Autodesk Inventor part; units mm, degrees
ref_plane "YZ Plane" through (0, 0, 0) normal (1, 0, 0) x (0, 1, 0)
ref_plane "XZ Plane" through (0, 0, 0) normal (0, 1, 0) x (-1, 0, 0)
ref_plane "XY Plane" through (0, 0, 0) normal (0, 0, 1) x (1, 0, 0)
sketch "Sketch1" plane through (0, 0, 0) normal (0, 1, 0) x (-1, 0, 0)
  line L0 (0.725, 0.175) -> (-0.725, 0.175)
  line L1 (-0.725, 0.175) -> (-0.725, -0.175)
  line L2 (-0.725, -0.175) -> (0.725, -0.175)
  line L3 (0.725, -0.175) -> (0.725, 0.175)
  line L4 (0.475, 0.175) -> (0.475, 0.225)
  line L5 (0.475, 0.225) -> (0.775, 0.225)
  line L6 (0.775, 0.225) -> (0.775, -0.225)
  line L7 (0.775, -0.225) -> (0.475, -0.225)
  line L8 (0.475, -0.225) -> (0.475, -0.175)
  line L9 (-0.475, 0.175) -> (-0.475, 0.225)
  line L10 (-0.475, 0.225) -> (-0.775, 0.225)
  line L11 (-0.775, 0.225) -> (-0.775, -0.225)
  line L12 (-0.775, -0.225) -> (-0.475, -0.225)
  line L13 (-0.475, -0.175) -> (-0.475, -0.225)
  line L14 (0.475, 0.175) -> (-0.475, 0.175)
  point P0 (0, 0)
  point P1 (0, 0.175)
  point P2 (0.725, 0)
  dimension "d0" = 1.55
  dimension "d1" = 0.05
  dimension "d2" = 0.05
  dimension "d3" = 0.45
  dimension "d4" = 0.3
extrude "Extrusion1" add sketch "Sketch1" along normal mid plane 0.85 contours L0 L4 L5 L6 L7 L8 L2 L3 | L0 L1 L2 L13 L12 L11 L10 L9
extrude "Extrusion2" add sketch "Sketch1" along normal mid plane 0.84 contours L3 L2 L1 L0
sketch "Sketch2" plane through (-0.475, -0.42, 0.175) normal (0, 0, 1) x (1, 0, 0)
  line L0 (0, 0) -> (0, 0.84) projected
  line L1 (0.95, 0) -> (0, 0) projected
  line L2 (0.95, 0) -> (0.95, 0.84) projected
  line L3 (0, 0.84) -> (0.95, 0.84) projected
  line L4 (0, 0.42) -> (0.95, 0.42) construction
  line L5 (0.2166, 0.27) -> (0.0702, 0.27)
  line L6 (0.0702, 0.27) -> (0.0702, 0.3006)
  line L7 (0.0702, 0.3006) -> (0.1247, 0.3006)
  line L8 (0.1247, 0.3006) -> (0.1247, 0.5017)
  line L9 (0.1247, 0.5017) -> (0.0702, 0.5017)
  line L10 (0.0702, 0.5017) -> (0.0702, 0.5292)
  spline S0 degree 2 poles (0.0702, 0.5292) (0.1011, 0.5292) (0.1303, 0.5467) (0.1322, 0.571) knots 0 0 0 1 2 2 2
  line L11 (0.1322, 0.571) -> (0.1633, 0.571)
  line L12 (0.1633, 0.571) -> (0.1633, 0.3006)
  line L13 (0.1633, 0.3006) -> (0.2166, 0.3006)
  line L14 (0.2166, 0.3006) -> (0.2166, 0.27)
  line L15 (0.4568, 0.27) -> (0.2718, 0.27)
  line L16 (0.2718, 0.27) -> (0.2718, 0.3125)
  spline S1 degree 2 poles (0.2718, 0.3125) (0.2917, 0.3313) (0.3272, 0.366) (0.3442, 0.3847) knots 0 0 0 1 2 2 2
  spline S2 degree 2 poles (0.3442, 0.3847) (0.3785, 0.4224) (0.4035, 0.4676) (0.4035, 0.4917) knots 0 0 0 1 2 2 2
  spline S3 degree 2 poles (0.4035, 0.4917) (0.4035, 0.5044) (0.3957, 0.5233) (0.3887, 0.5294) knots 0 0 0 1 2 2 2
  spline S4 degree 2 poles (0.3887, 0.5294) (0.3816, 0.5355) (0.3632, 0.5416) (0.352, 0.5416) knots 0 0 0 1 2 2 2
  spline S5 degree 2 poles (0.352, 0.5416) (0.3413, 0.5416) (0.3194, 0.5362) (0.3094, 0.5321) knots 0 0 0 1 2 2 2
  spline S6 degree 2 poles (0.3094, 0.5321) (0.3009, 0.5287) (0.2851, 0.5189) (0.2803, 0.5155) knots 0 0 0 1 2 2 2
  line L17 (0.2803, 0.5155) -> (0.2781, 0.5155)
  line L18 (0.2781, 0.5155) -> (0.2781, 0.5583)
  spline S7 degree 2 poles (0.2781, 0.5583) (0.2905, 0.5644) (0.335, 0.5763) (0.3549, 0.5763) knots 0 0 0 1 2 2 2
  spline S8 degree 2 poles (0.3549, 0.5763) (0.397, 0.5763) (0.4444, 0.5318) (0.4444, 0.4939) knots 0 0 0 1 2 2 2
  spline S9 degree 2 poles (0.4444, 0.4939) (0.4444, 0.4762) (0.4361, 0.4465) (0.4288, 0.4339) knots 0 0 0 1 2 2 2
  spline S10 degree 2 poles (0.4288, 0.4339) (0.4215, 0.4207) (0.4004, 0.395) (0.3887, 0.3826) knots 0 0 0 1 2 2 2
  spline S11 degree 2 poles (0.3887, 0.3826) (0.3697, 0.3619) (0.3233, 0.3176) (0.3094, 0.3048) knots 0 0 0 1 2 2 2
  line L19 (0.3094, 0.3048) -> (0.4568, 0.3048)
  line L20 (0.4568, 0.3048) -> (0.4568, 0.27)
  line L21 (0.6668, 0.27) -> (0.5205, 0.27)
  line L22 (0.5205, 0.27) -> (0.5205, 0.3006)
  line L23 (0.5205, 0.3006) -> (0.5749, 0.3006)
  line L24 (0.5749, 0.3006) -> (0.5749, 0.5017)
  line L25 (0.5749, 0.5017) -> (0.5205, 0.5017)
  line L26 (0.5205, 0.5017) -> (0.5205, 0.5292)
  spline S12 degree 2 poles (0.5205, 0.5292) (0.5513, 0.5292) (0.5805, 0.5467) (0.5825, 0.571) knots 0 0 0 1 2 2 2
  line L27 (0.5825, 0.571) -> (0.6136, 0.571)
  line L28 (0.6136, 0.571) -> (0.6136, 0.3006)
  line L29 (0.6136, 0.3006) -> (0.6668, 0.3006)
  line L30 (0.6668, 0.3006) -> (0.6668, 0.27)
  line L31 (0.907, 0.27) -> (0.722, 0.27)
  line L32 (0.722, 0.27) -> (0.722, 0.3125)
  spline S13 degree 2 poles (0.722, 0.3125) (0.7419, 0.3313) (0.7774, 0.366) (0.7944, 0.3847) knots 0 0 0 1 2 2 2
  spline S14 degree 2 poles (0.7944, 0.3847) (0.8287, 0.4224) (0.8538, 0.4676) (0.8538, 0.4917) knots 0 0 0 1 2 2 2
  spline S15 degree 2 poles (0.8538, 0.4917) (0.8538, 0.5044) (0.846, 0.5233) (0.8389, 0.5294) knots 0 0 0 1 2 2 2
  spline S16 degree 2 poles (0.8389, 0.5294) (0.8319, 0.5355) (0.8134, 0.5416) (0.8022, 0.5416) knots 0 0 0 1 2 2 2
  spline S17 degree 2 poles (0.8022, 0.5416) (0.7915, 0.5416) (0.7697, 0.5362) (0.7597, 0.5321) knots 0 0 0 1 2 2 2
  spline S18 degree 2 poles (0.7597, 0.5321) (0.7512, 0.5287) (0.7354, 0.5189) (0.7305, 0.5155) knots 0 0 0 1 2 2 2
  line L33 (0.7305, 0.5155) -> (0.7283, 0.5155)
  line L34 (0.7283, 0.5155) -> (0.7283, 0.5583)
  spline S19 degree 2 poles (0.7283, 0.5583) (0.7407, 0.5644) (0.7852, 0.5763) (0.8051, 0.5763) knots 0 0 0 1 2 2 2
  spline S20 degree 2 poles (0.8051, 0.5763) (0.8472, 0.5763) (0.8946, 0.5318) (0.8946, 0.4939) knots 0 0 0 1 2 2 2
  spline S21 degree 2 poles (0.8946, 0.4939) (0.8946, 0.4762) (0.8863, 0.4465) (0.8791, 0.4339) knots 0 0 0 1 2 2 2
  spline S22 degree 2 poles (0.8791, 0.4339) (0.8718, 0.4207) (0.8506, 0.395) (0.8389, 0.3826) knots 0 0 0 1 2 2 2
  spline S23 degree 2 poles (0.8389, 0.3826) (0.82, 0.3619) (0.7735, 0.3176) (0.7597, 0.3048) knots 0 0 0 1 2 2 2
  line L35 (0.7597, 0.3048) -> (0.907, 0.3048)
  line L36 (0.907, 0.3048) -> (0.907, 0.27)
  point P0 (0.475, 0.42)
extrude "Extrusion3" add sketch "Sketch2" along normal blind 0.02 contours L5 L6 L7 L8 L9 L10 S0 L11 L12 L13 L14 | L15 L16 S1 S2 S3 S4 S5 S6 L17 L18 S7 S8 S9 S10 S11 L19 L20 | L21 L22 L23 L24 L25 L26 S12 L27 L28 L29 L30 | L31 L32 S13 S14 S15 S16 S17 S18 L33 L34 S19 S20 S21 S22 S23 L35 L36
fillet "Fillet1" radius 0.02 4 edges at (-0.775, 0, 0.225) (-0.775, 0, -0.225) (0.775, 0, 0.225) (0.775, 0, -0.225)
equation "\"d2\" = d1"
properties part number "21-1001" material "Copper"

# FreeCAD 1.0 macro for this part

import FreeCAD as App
import Part
import Sketcher
Q = App.Units.Quantity


def edges_at(feature, points):
    """Names of the edges that pass closest to the given points."""
    edges = feature.Shape.Edges
    near = lambda p: min(range(len(edges)), key=lambda i: edges[i].distToShape(Part.Vertex(*p))[0])
    return sorted({f"Edge{near(p) + 1}" for p in points})

doc = App.newDocument("Part")
params = doc.addObject("Spreadsheet::Sheet", "Params")
for row, (alias, value) in enumerate([
    ("sketch1_width", "0.3 mm"),
    ("sketch1_height", "0.05 mm"),
    ("sketch1_height2", "0.45 mm"),
    ("pad1_length", "0.85 mm"),
    ("sketch2_width", "1.45 mm"),
    ("sketch2_height", "0.35 mm"),
    ("pad2_length", "0.84 mm"),
    ("pad3_length", "0.02 mm"),
    ("fillet_radius", "0.02 mm"),
], start=1):
    params.set(f"A{row}", alias)
    params.set(f"B{row}", "=" + value)
    params.setAlias(f"B{row}", alias)

body = doc.addObject("PartDesign::Body", "Body")
body.AllowCompound = True

# Sketch on XZ plane
sketch1 = body.newObject("Sketcher::SketchObject", "Sketch")
sketch1.AttachmentSupport = (doc.getObject("XZ_Plane"), [""])
sketch1.MapMode = "FlatFace"
sketch1.addGeometry([
    Part.LineSegment(App.Vector(-0.47, 0.17, 0), App.Vector(-0.72, 0.17, 0)),  # 0
    Part.LineSegment(App.Vector(-0.72, 0.17, 0), App.Vector(-0.72, -0.17, 0)),  # 1
    Part.LineSegment(App.Vector(-0.72, -0.17, 0), App.Vector(-0.47, -0.17, 0)),  # 2
    Part.LineSegment(App.Vector(-0.47, -0.17, 0), App.Vector(-0.47, -0.23, 0)),  # 3
    Part.LineSegment(App.Vector(-0.47, -0.23, 0), App.Vector(-0.78, -0.23, 0)),  # 4
    Part.LineSegment(App.Vector(-0.78, -0.23, 0), App.Vector(-0.78, 0.23, 0)),  # 5
    Part.LineSegment(App.Vector(-0.78, 0.23, 0), App.Vector(-0.47, 0.23, 0)),  # 6
    Part.LineSegment(App.Vector(-0.47, 0.23, 0), App.Vector(-0.47, 0.17, 0)),  # 7
    Part.LineSegment(App.Vector(0.72, 0.17, 0), App.Vector(0.47, 0.17, 0)),  # 8
    Part.LineSegment(App.Vector(0.47, 0.17, 0), App.Vector(0.47, 0.23, 0)),  # 9
    Part.LineSegment(App.Vector(0.47, 0.23, 0), App.Vector(0.78, 0.23, 0)),  # 10
    Part.LineSegment(App.Vector(0.78, 0.23, 0), App.Vector(0.78, -0.23, 0)),  # 11
    Part.LineSegment(App.Vector(0.78, -0.23, 0), App.Vector(0.47, -0.23, 0)),  # 12
    Part.LineSegment(App.Vector(0.47, -0.23, 0), App.Vector(0.47, -0.17, 0)),  # 13
    Part.LineSegment(App.Vector(0.47, -0.17, 0), App.Vector(0.72, -0.17, 0)),  # 14
    Part.LineSegment(App.Vector(0.72, -0.17, 0), App.Vector(0.72, 0.17, 0)),  # 15
], False)
sketch1.addConstraint([
    Sketcher.Constraint("Coincident", 0, 2, 1, 1),
    Sketcher.Constraint("Coincident", 1, 2, 2, 1),
    Sketcher.Constraint("Coincident", 2, 2, 3, 1),
    Sketcher.Constraint("Coincident", 3, 2, 4, 1),
    Sketcher.Constraint("Coincident", 4, 2, 5, 1),
    Sketcher.Constraint("Coincident", 5, 2, 6, 1),
    Sketcher.Constraint("Coincident", 6, 2, 7, 1),
    Sketcher.Constraint("Coincident", 7, 2, 0, 1),
    Sketcher.Constraint("Coincident", 8, 2, 9, 1),
    Sketcher.Constraint("Coincident", 9, 2, 10, 1),
    Sketcher.Constraint("Coincident", 10, 2, 11, 1),
    Sketcher.Constraint("Coincident", 11, 2, 12, 1),
    Sketcher.Constraint("Coincident", 12, 2, 13, 1),
    Sketcher.Constraint("Coincident", 13, 2, 14, 1),
    Sketcher.Constraint("Coincident", 14, 2, 15, 1),
    Sketcher.Constraint("Coincident", 15, 2, 8, 1),
    Sketcher.Constraint("Horizontal", 0),
    Sketcher.Constraint("Vertical", 1),
    Sketcher.Constraint("Horizontal", 2),
    Sketcher.Constraint("Vertical", 3),
    Sketcher.Constraint("Horizontal", 4),
    Sketcher.Constraint("Vertical", 5),
    Sketcher.Constraint("Horizontal", 6),
    Sketcher.Constraint("Vertical", 7),
    Sketcher.Constraint("Horizontal", 8),
    Sketcher.Constraint("Vertical", 9),
    Sketcher.Constraint("Horizontal", 10),
    Sketcher.Constraint("Vertical", 11),
    Sketcher.Constraint("Horizontal", 12),
    Sketcher.Constraint("Vertical", 13),
    Sketcher.Constraint("Horizontal", 14),
    Sketcher.Constraint("Vertical", 15),
    Sketcher.Constraint("Symmetric", 2, 2, 8, 2, -1, 1),
    Sketcher.Constraint("Symmetric", 4, 2, 10, 2, -1, 1),
    Sketcher.Constraint("Symmetric", 6, 2, 12, 2, -1, 1),
    Sketcher.Constraint("Symmetric", 0, 2, 14, 2, -1, 1),
    Sketcher.Constraint("Symmetric", 7, 2, 8, 2, -2),
    Sketcher.Constraint("Horizontal", 6, 2, 9, 2),
    Sketcher.Constraint("DistanceX", 4, 2, 4, 1, Q("0.3 mm")),
    Sketcher.Constraint("DistanceY", 3, 2, 3, 1, Q("0.05 mm")),
    Sketcher.Constraint("DistanceY", 5, 1, 5, 2, Q("0.45 mm")),
    Sketcher.Constraint("DistanceX", 4, 2, 1, 2, Q("0.05 mm")),
    Sketcher.Constraint("DistanceX", 0, 2, 8, 2, Q("1.2 mm")),
])
sketch1.setExpression("Constraints[38]", "Params.sketch1_width")
sketch1.setExpression("Constraints[39]", "Params.sketch1_height")
sketch1.setExpression("Constraints[40]", "Params.sketch1_height2")
pad1 = body.newObject("PartDesign::Pad", "Pad")
pad1.Profile = sketch1
pad1.setExpression("Length", "Params.pad1_length")
pad1.Midplane = True

# Sketch on XZ plane
sketch2 = body.newObject("Sketcher::SketchObject", "Sketch001")
sketch2.AttachmentSupport = (doc.getObject("XZ_Plane"), [""])
sketch2.MapMode = "FlatFace"
sketch2.addGeometry([
    Part.LineSegment(App.Vector(-0.72, -0.17, 0), App.Vector(-0.72, 0.17, 0)),
    Part.LineSegment(App.Vector(-0.72, 0.17, 0), App.Vector(0.72, 0.17, 0)),
    Part.LineSegment(App.Vector(0.72, 0.17, 0), App.Vector(0.72, -0.17, 0)),
    Part.LineSegment(App.Vector(0.72, -0.17, 0), App.Vector(-0.72, -0.17, 0)),
], False)
sketch2.addConstraint([
    Sketcher.Constraint("Coincident", 0, 2, 1, 1),
    Sketcher.Constraint("Coincident", 1, 2, 2, 1),
    Sketcher.Constraint("Coincident", 2, 2, 3, 1),
    Sketcher.Constraint("Coincident", 3, 2, 0, 1),
    Sketcher.Constraint("Vertical", 0),
    Sketcher.Constraint("Horizontal", 1),
    Sketcher.Constraint("Vertical", 2),
    Sketcher.Constraint("Horizontal", 3),
    Sketcher.Constraint("Symmetric", 0, 2, 2, 2, -1, 1),
    Sketcher.Constraint("DistanceX", 1, 1, 1, 2, Q("1.45 mm")),
    Sketcher.Constraint("DistanceY", 0, 1, 0, 2, Q("0.35 mm")),
])
sketch2.setExpression("Constraints[9]", "Params.sketch2_width")
sketch2.setExpression("Constraints[10]", "Params.sketch2_height")
pad2 = body.newObject("PartDesign::Pad", "Pad001")
pad2.Profile = sketch2
pad2.setExpression("Length", "Params.pad2_length")
pad2.Midplane = True

# Sketch on XY plane
sketch3 = body.newObject("Sketcher::SketchObject", "Sketch002")
sketch3.AttachmentSupport = (doc.getObject("XY_Plane"), [""])
sketch3.MapMode = "FlatFace"
sketch3.AttachmentOffset = App.Placement(App.Vector(0, 0, 0.175), App.Rotation())
sketch3.addGeometry([
    Part.LineSegment(App.Vector(-0.4048, -0.15, 0), App.Vector(-0.2584, -0.15, 0)),  # 0
    Part.LineSegment(App.Vector(-0.2584, -0.15, 0), App.Vector(-0.2584, -0.1194, 0)),  # 1
    Part.LineSegment(App.Vector(-0.2584, -0.1194, 0), App.Vector(-0.3117, -0.1194, 0)),  # 2
    Part.LineSegment(App.Vector(-0.3117, -0.1194, 0), App.Vector(-0.3117, 0.151, 0)),  # 3
    Part.LineSegment(App.Vector(-0.3117, 0.151, 0), App.Vector(-0.3428, 0.151, 0)),  # 4
    Part.BSplineCurve([App.Vector(-0.4048, 0.1092, 0), App.Vector(-0.3739, 0.1092, 0), App.Vector(-0.3447, 0.1267, 0), App.Vector(-0.3428, 0.151, 0)], [3, 1, 3], [0, 1, 2], False, 2, [1, 1, 1, 1], False),  # 5
    Part.LineSegment(App.Vector(-0.4048, 0.1092, 0), App.Vector(-0.4048, 0.0817, 0)),  # 6
    Part.LineSegment(App.Vector(-0.4048, 0.0817, 0), App.Vector(-0.3503, 0.0817, 0)),  # 7
    Part.LineSegment(App.Vector(-0.3503, 0.0817, 0), App.Vector(-0.3503, -0.1194, 0)),  # 8
    Part.LineSegment(App.Vector(-0.3503, -0.1194, 0), App.Vector(-0.4048, -0.1194, 0)),  # 9
    Part.LineSegment(App.Vector(-0.4048, -0.1194, 0), App.Vector(-0.4048, -0.15, 0)),  # 10
    Part.LineSegment(App.Vector(-0.2032, -0.15, 0), App.Vector(-0.0182, -0.15, 0)),  # 11
    Part.LineSegment(App.Vector(-0.0182, -0.15, 0), App.Vector(-0.0182, -0.1152, 0)),  # 12
    Part.LineSegment(App.Vector(-0.0182, -0.1152, 0), App.Vector(-0.1656, -0.1152, 0)),  # 13
    Part.BSplineCurve([App.Vector(-0.0863, -0.0374, 0), App.Vector(-0.1053, -0.0581, 0), App.Vector(-0.1517, -0.1024, 0), App.Vector(-0.1656, -0.1152, 0)], [3, 1, 3], [0, 1, 2], False, 2, [1, 1, 1, 1], False),  # 14
    Part.BSplineCurve([App.Vector(-0.0462, 0.0139, 0), App.Vector(-0.0535, 0.0007, 0), App.Vector(-0.0746, -0.025, 0), App.Vector(-0.0863, -0.0374, 0)], [3, 1, 3], [0, 1, 2], False, 2, [1, 1, 1, 1], False),  # 15
    Part.BSplineCurve([App.Vector(-0.0306, 0.0739, 0), App.Vector(-0.0306, 0.0562, 0), App.Vector(-0.0389, 0.0265, 0), App.Vector(-0.0462, 0.0139, 0)], [3, 1, 3], [0, 1, 2], False, 2, [1, 1, 1, 1], False),  # 16
    Part.BSplineCurve([App.Vector(-0.1201, 0.1563, 0), App.Vector(-0.078, 0.1563, 0), App.Vector(-0.0306, 0.1118, 0), App.Vector(-0.0306, 0.0739, 0)], [3, 1, 3], [0, 1, 2], False, 2, [1, 1, 1, 1], False),  # 17
    Part.BSplineCurve([App.Vector(-0.1969, 0.1383, 0), App.Vector(-0.1845, 0.1444, 0), App.Vector(-0.14, 0.1563, 0), App.Vector(-0.1201, 0.1563, 0)], [3, 1, 3], [0, 1, 2], False, 2, [1, 1, 1, 1], False),  # 18
    Part.LineSegment(App.Vector(-0.1969, 0.1383, 0), App.Vector(-0.1969, 0.0955, 0)),  # 19
    Part.LineSegment(App.Vector(-0.1969, 0.0955, 0), App.Vector(-0.1947, 0.0955, 0)),  # 20
    Part.BSplineCurve([App.Vector(-0.1656, 0.1121, 0), App.Vector(-0.1741, 0.1087, 0), App.Vector(-0.1899, 0.0989, 0), App.Vector(-0.1947, 0.0955, 0)], [3, 1, 3], [0, 1, 2], False, 2, [1, 1, 1, 1], False),  # 21
    Part.BSplineCurve([App.Vector(-0.123, 0.1216, 0), App.Vector(-0.1337, 0.1216, 0), App.Vector(-0.1556, 0.1162, 0), App.Vector(-0.1656, 0.1121, 0)], [3, 1, 3], [0, 1, 2], False, 2, [1, 1, 1, 1], False),  # 22
    Part.BSplineCurve([App.Vector(-0.0863, 0.1094, 0), App.Vector(-0.0934, 0.1155, 0), App.Vector(-0.1118, 0.1216, 0), App.Vector(-0.123, 0.1216, 0)], [3, 1, 3], [0, 1, 2], False, 2, [1, 1, 1, 1], False),  # 23
    Part.BSplineCurve([App.Vector(-0.0715, 0.0717, 0), App.Vector(-0.0715, 0.0844, 0), App.Vector(-0.0793, 0.1033, 0), App.Vector(-0.0863, 0.1094, 0)], [3, 1, 3], [0, 1, 2], False, 2, [1, 1, 1, 1], False),  # 24
    Part.BSplineCurve([App.Vector(-0.1308, -0.0353, 0), App.Vector(-0.0965, 0.0024, 0), App.Vector(-0.0715, 0.0476, 0), App.Vector(-0.0715, 0.0717, 0)], [3, 1, 3], [0, 1, 2], False, 2, [1, 1, 1, 1], False),  # 25
    Part.BSplineCurve([App.Vector(-0.2032, -0.1075, 0), App.Vector(-0.1833, -0.0887, 0), App.Vector(-0.1478, -0.054, 0), App.Vector(-0.1308, -0.0353, 0)], [3, 1, 3], [0, 1, 2], False, 2, [1, 1, 1, 1], False),  # 26
    Part.LineSegment(App.Vector(-0.2032, -0.1075, 0), App.Vector(-0.2032, -0.15, 0)),  # 27
    Part.LineSegment(App.Vector(0.0455, -0.15, 0), App.Vector(0.1918, -0.15, 0)),  # 28
    Part.LineSegment(App.Vector(0.1918, -0.15, 0), App.Vector(0.1918, -0.1194, 0)),  # 29
    Part.LineSegment(App.Vector(0.1918, -0.1194, 0), App.Vector(0.1386, -0.1194, 0)),  # 30
    Part.LineSegment(App.Vector(0.1386, -0.1194, 0), App.Vector(0.1386, 0.151, 0)),  # 31
    Part.LineSegment(App.Vector(0.1386, 0.151, 0), App.Vector(0.1075, 0.151, 0)),  # 32
    Part.BSplineCurve([App.Vector(0.0455, 0.1092, 0), App.Vector(0.0763, 0.1092, 0), App.Vector(0.1055, 0.1267, 0), App.Vector(0.1075, 0.151, 0)], [3, 1, 3], [0, 1, 2], False, 2, [1, 1, 1, 1], False),  # 33
    Part.LineSegment(App.Vector(0.0455, 0.1092, 0), App.Vector(0.0455, 0.0817, 0)),  # 34
    Part.LineSegment(App.Vector(0.0455, 0.0817, 0), App.Vector(0.0999, 0.0817, 0)),  # 35
    Part.LineSegment(App.Vector(0.0999, 0.0817, 0), App.Vector(0.0999, -0.1194, 0)),  # 36
    Part.LineSegment(App.Vector(0.0999, -0.1194, 0), App.Vector(0.0455, -0.1194, 0)),  # 37
    Part.LineSegment(App.Vector(0.0455, -0.1194, 0), App.Vector(0.0455, -0.15, 0)),  # 38
    Part.LineSegment(App.Vector(0.247, -0.15, 0), App.Vector(0.432, -0.15, 0)),  # 39
    Part.LineSegment(App.Vector(0.432, -0.15, 0), App.Vector(0.432, -0.1152, 0)),  # 40
    Part.LineSegment(App.Vector(0.432, -0.1152, 0), App.Vector(0.2847, -0.1152, 0)),  # 41
    Part.BSplineCurve([App.Vector(0.3639, -0.0374, 0), App.Vector(0.345, -0.0581, 0), App.Vector(0.2985, -0.1024, 0), App.Vector(0.2847, -0.1152, 0)], [3, 1, 3], [0, 1, 2], False, 2, [1, 1, 1, 1], False),  # 42
    Part.BSplineCurve([App.Vector(0.4041, 0.0139, 0), App.Vector(0.3968, 0.0007, 0), App.Vector(0.3756, -0.025, 0), App.Vector(0.3639, -0.0374, 0)], [3, 1, 3], [0, 1, 2], False, 2, [1, 1, 1, 1], False),  # 43
    Part.BSplineCurve([App.Vector(0.4196, 0.0739, 0), App.Vector(0.4196, 0.0562, 0), App.Vector(0.4113, 0.0265, 0), App.Vector(0.4041, 0.0139, 0)], [3, 1, 3], [0, 1, 2], False, 2, [1, 1, 1, 1], False),  # 44
    Part.BSplineCurve([App.Vector(0.3301, 0.1563, 0), App.Vector(0.3722, 0.1563, 0), App.Vector(0.4196, 0.1118, 0), App.Vector(0.4196, 0.0739, 0)], [3, 1, 3], [0, 1, 2], False, 2, [1, 1, 1, 1], False),  # 45
    Part.BSplineCurve([App.Vector(0.2533, 0.1383, 0), App.Vector(0.2657, 0.1444, 0), App.Vector(0.3102, 0.1563, 0), App.Vector(0.3301, 0.1563, 0)], [3, 1, 3], [0, 1, 2], False, 2, [1, 1, 1, 1], False),  # 46
    Part.LineSegment(App.Vector(0.2533, 0.1383, 0), App.Vector(0.2533, 0.0955, 0)),  # 47
    Part.LineSegment(App.Vector(0.2533, 0.0955, 0), App.Vector(0.2555, 0.0955, 0)),  # 48
    Part.BSplineCurve([App.Vector(0.2847, 0.1121, 0), App.Vector(0.2762, 0.1087, 0), App.Vector(0.2604, 0.0989, 0), App.Vector(0.2555, 0.0955, 0)], [3, 1, 3], [0, 1, 2], False, 2, [1, 1, 1, 1], False),  # 49
    Part.BSplineCurve([App.Vector(0.3272, 0.1216, 0), App.Vector(0.3165, 0.1216, 0), App.Vector(0.2947, 0.1162, 0), App.Vector(0.2847, 0.1121, 0)], [3, 1, 3], [0, 1, 2], False, 2, [1, 1, 1, 1], False),  # 50
    Part.BSplineCurve([App.Vector(0.3639, 0.1094, 0), App.Vector(0.3569, 0.1155, 0), App.Vector(0.3384, 0.1216, 0), App.Vector(0.3272, 0.1216, 0)], [3, 1, 3], [0, 1, 2], False, 2, [1, 1, 1, 1], False),  # 51
    Part.BSplineCurve([App.Vector(0.3788, 0.0717, 0), App.Vector(0.3788, 0.0844, 0), App.Vector(0.371, 0.1033, 0), App.Vector(0.3639, 0.1094, 0)], [3, 1, 3], [0, 1, 2], False, 2, [1, 1, 1, 1], False),  # 52
    Part.BSplineCurve([App.Vector(0.3194, -0.0353, 0), App.Vector(0.3537, 0.0024, 0), App.Vector(0.3788, 0.0476, 0), App.Vector(0.3788, 0.0717, 0)], [3, 1, 3], [0, 1, 2], False, 2, [1, 1, 1, 1], False),  # 53
    Part.BSplineCurve([App.Vector(0.247, -0.1075, 0), App.Vector(0.2669, -0.0887, 0), App.Vector(0.3024, -0.054, 0), App.Vector(0.3194, -0.0353, 0)], [3, 1, 3], [0, 1, 2], False, 2, [1, 1, 1, 1], False),  # 54
    Part.LineSegment(App.Vector(0.247, -0.1075, 0), App.Vector(0.247, -0.15, 0)),  # 55
], False)
sketch3.addConstraint([
    Sketcher.Constraint("Block", 5),
    Sketcher.Constraint("Block", 14),
    Sketcher.Constraint("Block", 15),
    Sketcher.Constraint("Block", 16),
    Sketcher.Constraint("Block", 17),
    Sketcher.Constraint("Block", 18),
    Sketcher.Constraint("Block", 21),
    Sketcher.Constraint("Block", 22),
    Sketcher.Constraint("Block", 23),
    Sketcher.Constraint("Block", 24),
    Sketcher.Constraint("Block", 25),
    Sketcher.Constraint("Block", 26),
    Sketcher.Constraint("Block", 33),
    Sketcher.Constraint("Block", 42),
    Sketcher.Constraint("Block", 43),
    Sketcher.Constraint("Block", 44),
    Sketcher.Constraint("Block", 45),
    Sketcher.Constraint("Block", 46),
    Sketcher.Constraint("Block", 49),
    Sketcher.Constraint("Block", 50),
    Sketcher.Constraint("Block", 51),
    Sketcher.Constraint("Block", 52),
    Sketcher.Constraint("Block", 53),
    Sketcher.Constraint("Block", 54),
    Sketcher.Constraint("Coincident", 0, 2, 1, 1),
    Sketcher.Constraint("Coincident", 1, 2, 2, 1),
    Sketcher.Constraint("Coincident", 2, 2, 3, 1),
    Sketcher.Constraint("Coincident", 3, 2, 4, 1),
    Sketcher.Constraint("Coincident", 4, 2, 5, 2),
    Sketcher.Constraint("Coincident", 5, 1, 6, 1),
    Sketcher.Constraint("Coincident", 6, 2, 7, 1),
    Sketcher.Constraint("Coincident", 7, 2, 8, 1),
    Sketcher.Constraint("Coincident", 8, 2, 9, 1),
    Sketcher.Constraint("Coincident", 9, 2, 10, 1),
    Sketcher.Constraint("Coincident", 10, 2, 0, 1),
    Sketcher.Constraint("Coincident", 11, 2, 12, 1),
    Sketcher.Constraint("Coincident", 12, 2, 13, 1),
    Sketcher.Constraint("Coincident", 13, 2, 14, 2),
    Sketcher.Constraint("Coincident", 18, 1, 19, 1),
    Sketcher.Constraint("Coincident", 19, 2, 20, 1),
    Sketcher.Constraint("Coincident", 20, 2, 21, 2),
    Sketcher.Constraint("Coincident", 26, 1, 27, 1),
    Sketcher.Constraint("Coincident", 27, 2, 11, 1),
    Sketcher.Constraint("Coincident", 28, 2, 29, 1),
    Sketcher.Constraint("Coincident", 29, 2, 30, 1),
    Sketcher.Constraint("Coincident", 30, 2, 31, 1),
    Sketcher.Constraint("Coincident", 31, 2, 32, 1),
    Sketcher.Constraint("Coincident", 32, 2, 33, 2),
    Sketcher.Constraint("Coincident", 33, 1, 34, 1),
    Sketcher.Constraint("Coincident", 34, 2, 35, 1),
    Sketcher.Constraint("Coincident", 35, 2, 36, 1),
    Sketcher.Constraint("Coincident", 36, 2, 37, 1),
    Sketcher.Constraint("Coincident", 37, 2, 38, 1),
    Sketcher.Constraint("Coincident", 38, 2, 28, 1),
    Sketcher.Constraint("Coincident", 39, 2, 40, 1),
    Sketcher.Constraint("Coincident", 40, 2, 41, 1),
    Sketcher.Constraint("Coincident", 41, 2, 42, 2),
    Sketcher.Constraint("Coincident", 46, 1, 47, 1),
    Sketcher.Constraint("Coincident", 47, 2, 48, 1),
    Sketcher.Constraint("Coincident", 48, 2, 49, 2),
    Sketcher.Constraint("Coincident", 54, 1, 55, 1),
    Sketcher.Constraint("Coincident", 55, 2, 39, 1),
    Sketcher.Constraint("Horizontal", 0),
    Sketcher.Constraint("Vertical", 1),
    Sketcher.Constraint("Horizontal", 2),
    Sketcher.Constraint("Vertical", 3),
    Sketcher.Constraint("Horizontal", 4),
    Sketcher.Constraint("Vertical", 6),
    Sketcher.Constraint("Horizontal", 7),
    Sketcher.Constraint("Vertical", 8),
    Sketcher.Constraint("Horizontal", 9),
    Sketcher.Constraint("Vertical", 10),
    Sketcher.Constraint("Horizontal", 11),
    Sketcher.Constraint("Vertical", 12),
    Sketcher.Constraint("Horizontal", 13),
    Sketcher.Constraint("Vertical", 19),
    Sketcher.Constraint("Horizontal", 20),
    Sketcher.Constraint("Vertical", 27),
    Sketcher.Constraint("Horizontal", 28),
    Sketcher.Constraint("Vertical", 29),
    Sketcher.Constraint("Horizontal", 30),
    Sketcher.Constraint("Vertical", 31),
    Sketcher.Constraint("Horizontal", 32),
    Sketcher.Constraint("Vertical", 34),
    Sketcher.Constraint("Horizontal", 35),
    Sketcher.Constraint("Vertical", 36),
    Sketcher.Constraint("Horizontal", 37),
    Sketcher.Constraint("Vertical", 38),
    Sketcher.Constraint("Horizontal", 39),
    Sketcher.Constraint("Vertical", 40),
    Sketcher.Constraint("Horizontal", 41),
    Sketcher.Constraint("Vertical", 47),
    Sketcher.Constraint("Horizontal", 48),
    Sketcher.Constraint("Vertical", 55),
    Sketcher.Constraint("Horizontal", 2, 2, 8, 2),
    Sketcher.Constraint("Horizontal", 10, 2, 11, 2),
    Sketcher.Constraint("Horizontal", 27, 2, 28, 2),
    Sketcher.Constraint("Horizontal", 9, 2, 29, 2),
    Sketcher.Constraint("Horizontal", 7, 2, 34, 2),
    Sketcher.Constraint("Horizontal", 30, 2, 36, 2),
    Sketcher.Constraint("Horizontal", 38, 2, 39, 2),
    Sketcher.Constraint("Vertical", 6, 2, 9, 2),
    Sketcher.Constraint("Vertical", 34, 2, 37, 2),
    Sketcher.Constraint("Equal", 0, 28),
    Sketcher.Constraint("Equal", 2, 30),
    Sketcher.Constraint("Equal", 9, 35),
    Sketcher.Constraint("Equal", 11, 39),
    Sketcher.Constraint("DistanceX", -1, 1, 35, 2, Q("0.1 mm")),
    Sketcher.Constraint("DistanceX", 4, 2, 4, 1, Q("0.031 mm")),
    Sketcher.Constraint("DistanceX", 11, 1, 11, 2, Q("0.185 mm")),
    Sketcher.Constraint("DistanceY", 8, 2, 8, 1, Q("0.201 mm")),
    Sketcher.Constraint("DistanceY", 0, 2, -1, 1, Q("0.15 mm")),
    Sketcher.Constraint("DistanceX", 11, 2, 28, 2, Q("0.21 mm")),
    Sketcher.Constraint("DistanceY", 1, 1, 1, 2, Q("0.0306 mm")),
])
pad3 = body.newObject("PartDesign::Pad", "Pad002")
pad3.Profile = sketch3
pad3.setExpression("Length", "Params.pad3_length")
doc.recompute()

fillet = body.newObject("PartDesign::Fillet", "Fillet")
fillet.Base = (pad3, edges_at(pad3, [
    (-0.775, 0, 0.225),
    (-0.775, 0, -0.225),
    (0.775, 0, 0.225),
    (0.775, 0, -0.225),
]))
fillet.setExpression("Radius", "Params.fillet_radius")

doc.recompute()
